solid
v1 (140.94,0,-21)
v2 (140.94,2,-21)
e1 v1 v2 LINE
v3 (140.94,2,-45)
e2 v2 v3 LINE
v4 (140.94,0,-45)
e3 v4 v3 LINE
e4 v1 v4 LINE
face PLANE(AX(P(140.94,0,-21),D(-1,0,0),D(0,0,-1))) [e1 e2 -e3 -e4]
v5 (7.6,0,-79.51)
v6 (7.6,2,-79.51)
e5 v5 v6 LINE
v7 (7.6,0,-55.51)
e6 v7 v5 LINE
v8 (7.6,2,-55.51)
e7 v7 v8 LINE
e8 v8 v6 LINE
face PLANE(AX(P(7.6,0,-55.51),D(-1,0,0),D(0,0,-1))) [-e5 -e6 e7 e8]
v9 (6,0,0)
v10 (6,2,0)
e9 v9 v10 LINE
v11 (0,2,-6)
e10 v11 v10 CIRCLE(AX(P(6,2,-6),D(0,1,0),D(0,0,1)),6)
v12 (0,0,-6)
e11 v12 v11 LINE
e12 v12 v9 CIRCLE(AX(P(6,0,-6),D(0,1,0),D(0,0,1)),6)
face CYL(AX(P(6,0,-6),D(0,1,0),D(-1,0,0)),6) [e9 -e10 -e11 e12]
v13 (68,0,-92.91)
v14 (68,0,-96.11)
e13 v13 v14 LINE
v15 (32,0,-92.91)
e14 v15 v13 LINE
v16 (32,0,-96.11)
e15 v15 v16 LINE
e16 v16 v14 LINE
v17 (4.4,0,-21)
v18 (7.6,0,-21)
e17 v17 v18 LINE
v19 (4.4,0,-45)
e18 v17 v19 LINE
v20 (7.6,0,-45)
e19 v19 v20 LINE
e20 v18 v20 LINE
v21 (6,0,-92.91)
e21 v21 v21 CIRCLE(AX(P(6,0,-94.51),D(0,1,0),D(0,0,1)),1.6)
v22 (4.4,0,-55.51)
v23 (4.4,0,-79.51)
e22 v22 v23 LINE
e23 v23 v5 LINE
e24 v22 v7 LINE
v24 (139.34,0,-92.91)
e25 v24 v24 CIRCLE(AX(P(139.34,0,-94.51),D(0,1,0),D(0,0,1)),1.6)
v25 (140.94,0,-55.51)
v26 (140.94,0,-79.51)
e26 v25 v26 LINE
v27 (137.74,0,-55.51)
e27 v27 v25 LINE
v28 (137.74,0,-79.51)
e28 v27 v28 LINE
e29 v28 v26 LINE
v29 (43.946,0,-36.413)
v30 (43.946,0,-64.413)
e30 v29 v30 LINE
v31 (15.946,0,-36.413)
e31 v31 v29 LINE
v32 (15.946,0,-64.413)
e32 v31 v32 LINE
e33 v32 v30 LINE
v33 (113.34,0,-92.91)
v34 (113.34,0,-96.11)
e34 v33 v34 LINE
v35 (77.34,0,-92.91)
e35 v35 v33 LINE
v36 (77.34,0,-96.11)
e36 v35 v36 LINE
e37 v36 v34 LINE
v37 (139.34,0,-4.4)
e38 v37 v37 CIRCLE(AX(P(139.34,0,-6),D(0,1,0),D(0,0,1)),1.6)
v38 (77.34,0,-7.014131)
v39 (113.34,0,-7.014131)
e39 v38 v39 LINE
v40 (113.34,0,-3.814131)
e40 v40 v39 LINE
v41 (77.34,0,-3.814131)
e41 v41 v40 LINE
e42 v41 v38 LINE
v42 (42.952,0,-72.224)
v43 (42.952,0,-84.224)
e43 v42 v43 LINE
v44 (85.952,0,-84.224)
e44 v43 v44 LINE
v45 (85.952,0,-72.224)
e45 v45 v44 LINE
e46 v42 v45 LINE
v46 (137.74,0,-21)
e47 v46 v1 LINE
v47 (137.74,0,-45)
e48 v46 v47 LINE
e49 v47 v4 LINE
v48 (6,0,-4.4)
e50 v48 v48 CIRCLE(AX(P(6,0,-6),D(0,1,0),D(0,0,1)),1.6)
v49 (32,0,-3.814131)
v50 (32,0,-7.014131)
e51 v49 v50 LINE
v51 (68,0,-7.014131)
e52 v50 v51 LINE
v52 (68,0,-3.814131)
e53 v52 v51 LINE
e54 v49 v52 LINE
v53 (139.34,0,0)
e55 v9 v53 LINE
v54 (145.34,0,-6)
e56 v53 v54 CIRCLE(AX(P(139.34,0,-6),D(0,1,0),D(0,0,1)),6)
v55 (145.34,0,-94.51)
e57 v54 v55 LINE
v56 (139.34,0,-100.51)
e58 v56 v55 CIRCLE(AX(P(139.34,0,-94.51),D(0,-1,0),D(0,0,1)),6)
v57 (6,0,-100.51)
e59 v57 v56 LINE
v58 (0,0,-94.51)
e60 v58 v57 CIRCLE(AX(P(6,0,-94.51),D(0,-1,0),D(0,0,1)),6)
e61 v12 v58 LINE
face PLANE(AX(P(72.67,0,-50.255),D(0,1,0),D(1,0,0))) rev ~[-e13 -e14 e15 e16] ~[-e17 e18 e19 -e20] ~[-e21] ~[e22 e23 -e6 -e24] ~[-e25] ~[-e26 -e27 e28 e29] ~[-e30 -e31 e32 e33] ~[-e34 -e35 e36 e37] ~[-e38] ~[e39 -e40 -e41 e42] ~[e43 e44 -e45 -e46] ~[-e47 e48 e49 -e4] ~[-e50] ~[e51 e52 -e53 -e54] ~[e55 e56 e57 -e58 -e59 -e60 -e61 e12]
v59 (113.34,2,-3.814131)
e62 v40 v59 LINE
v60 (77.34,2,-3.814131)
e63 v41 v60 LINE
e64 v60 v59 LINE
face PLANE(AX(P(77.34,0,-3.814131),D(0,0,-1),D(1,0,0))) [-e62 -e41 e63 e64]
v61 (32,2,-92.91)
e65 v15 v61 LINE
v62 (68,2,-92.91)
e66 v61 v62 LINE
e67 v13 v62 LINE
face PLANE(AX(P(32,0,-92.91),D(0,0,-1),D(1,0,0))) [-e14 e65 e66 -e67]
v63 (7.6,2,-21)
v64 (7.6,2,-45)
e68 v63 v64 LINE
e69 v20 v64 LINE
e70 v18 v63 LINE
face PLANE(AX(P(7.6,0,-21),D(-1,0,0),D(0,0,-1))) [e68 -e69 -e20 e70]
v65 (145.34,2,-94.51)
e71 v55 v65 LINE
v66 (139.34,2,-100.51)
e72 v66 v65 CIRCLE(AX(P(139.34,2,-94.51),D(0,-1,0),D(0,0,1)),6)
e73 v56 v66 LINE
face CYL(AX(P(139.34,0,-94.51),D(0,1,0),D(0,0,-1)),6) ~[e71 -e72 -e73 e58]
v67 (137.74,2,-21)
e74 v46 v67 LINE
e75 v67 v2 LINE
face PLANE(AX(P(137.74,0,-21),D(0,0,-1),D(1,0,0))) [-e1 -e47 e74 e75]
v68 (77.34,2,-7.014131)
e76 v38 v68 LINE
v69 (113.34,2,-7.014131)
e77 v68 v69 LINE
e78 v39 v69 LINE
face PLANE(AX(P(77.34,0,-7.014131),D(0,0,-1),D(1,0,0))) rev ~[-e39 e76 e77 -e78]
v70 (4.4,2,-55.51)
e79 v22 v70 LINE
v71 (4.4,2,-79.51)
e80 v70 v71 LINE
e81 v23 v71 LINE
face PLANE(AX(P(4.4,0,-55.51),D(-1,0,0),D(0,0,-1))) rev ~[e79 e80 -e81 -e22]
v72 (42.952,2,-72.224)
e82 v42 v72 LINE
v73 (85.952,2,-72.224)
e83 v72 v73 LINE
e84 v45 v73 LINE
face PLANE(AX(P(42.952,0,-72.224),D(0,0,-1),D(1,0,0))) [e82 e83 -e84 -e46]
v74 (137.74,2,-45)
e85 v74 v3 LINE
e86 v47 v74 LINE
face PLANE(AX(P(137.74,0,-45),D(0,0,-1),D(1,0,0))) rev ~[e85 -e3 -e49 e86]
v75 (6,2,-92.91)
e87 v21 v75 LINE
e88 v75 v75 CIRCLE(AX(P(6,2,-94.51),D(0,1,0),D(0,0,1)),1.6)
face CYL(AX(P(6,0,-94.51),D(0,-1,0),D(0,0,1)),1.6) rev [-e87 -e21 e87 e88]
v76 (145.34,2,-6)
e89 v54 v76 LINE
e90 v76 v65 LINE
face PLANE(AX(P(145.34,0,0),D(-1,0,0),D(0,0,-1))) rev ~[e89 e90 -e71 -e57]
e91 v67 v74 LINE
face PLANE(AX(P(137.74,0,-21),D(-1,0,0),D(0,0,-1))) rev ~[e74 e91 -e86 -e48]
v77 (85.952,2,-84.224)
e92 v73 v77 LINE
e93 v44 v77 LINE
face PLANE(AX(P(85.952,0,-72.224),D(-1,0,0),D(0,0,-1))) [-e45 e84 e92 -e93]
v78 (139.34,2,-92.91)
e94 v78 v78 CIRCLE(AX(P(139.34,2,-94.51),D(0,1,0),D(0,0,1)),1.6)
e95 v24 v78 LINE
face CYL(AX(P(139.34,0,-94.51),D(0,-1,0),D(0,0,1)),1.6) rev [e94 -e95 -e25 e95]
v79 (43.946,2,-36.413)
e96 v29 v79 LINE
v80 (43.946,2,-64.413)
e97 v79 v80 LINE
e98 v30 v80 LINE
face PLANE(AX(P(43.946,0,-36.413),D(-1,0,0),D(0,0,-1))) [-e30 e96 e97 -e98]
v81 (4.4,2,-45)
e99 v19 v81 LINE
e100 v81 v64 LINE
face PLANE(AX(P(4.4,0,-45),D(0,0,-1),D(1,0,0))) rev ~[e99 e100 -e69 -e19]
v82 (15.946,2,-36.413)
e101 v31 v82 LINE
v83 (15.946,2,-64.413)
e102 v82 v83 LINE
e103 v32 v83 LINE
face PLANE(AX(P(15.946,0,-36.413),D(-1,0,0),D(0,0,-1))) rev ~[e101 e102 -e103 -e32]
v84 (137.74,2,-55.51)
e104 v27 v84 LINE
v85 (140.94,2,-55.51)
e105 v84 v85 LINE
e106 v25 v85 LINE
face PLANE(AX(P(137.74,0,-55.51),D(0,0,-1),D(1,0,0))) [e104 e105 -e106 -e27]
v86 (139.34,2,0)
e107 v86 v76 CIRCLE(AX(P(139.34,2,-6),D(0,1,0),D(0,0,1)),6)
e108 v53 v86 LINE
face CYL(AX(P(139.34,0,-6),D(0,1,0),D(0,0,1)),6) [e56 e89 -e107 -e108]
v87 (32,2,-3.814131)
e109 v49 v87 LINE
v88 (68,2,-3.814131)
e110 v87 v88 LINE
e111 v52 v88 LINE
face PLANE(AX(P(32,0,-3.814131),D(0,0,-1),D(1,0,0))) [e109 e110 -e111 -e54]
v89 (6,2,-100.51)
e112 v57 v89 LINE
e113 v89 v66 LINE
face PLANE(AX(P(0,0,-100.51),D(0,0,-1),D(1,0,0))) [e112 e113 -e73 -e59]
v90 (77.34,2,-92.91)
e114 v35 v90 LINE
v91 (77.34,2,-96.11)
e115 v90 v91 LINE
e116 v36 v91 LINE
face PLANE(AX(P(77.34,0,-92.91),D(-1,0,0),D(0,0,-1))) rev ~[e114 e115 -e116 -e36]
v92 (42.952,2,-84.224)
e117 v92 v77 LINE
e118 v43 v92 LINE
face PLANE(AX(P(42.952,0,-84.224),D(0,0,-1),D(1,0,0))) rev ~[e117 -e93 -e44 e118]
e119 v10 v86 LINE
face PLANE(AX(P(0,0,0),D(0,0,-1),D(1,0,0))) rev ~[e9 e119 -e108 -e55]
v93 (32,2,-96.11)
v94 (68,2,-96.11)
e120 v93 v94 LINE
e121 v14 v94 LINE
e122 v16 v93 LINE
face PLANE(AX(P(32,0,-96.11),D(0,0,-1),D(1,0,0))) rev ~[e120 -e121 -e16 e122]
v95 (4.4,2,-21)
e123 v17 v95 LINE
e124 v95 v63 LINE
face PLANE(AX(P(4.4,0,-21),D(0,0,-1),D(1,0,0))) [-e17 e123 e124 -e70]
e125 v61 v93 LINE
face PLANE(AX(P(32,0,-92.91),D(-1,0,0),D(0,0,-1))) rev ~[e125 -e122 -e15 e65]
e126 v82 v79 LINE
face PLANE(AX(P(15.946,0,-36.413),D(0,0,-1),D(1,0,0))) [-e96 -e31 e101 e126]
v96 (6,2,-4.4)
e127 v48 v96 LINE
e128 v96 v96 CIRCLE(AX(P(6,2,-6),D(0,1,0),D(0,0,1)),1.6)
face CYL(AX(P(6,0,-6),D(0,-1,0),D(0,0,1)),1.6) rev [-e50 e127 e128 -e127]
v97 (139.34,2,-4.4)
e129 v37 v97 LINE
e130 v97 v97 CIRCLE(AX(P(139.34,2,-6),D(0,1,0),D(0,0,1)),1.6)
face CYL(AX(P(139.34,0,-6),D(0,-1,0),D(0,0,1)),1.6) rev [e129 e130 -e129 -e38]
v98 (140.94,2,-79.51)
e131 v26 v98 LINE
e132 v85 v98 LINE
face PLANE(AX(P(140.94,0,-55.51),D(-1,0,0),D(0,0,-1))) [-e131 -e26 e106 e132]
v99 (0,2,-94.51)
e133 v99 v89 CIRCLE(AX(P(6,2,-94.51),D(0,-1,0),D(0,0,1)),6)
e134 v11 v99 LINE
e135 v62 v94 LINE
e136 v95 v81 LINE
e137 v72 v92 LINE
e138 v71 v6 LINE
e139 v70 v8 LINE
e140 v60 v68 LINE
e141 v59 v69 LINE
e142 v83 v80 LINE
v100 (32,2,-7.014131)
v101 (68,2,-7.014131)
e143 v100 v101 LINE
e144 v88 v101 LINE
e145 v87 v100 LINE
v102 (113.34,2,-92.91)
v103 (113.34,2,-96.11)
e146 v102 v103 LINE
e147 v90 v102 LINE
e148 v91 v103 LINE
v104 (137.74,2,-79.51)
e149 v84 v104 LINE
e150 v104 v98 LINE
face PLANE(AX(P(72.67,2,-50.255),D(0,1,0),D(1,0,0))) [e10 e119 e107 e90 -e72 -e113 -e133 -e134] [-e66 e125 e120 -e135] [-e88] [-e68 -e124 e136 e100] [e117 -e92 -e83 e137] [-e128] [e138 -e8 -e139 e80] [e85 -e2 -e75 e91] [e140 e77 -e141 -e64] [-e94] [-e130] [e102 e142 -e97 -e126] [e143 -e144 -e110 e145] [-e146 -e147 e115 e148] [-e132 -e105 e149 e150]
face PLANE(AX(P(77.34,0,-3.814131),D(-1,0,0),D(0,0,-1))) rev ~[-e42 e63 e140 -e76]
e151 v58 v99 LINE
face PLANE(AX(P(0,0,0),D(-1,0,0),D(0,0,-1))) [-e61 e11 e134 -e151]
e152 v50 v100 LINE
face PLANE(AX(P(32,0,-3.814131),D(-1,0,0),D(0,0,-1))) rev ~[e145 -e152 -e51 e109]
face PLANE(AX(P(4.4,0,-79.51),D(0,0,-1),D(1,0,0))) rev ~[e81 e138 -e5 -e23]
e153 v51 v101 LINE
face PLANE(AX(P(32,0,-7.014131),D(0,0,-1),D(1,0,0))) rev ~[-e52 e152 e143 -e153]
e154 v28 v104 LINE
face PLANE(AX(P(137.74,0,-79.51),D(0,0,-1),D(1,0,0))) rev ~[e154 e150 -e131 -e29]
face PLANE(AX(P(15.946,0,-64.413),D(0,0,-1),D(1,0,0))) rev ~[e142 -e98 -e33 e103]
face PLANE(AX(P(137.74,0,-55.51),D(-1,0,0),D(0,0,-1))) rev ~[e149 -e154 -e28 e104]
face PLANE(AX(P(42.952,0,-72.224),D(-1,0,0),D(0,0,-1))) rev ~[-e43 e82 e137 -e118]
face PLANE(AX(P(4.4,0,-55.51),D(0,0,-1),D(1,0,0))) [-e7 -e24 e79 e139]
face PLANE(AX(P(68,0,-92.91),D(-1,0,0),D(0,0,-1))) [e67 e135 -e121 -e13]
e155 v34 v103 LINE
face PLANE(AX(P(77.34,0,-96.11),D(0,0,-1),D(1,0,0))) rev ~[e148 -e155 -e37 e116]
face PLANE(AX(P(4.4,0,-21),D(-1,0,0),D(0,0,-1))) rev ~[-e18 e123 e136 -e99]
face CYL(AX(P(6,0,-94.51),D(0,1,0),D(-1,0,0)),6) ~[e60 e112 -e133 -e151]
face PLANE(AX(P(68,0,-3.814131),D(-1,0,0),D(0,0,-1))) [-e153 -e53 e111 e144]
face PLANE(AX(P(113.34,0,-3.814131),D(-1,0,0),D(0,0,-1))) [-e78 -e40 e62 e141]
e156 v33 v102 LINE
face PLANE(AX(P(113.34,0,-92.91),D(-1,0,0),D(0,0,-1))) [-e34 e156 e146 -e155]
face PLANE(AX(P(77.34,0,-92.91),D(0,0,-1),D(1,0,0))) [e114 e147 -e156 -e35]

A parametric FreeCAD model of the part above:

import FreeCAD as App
import Part
import Sketcher
from FreeCAD import Vector


def edges_at(feature, points):
    """Names of the edges that pass closest to the given points."""
    edges = feature.Shape.Edges
    near = lambda p: min(range(len(edges)), key=lambda i: edges[i].distToShape(Part.Vertex(*p))[0])
    return sorted({f"Edge{near(p) + 1}" for p in points})


def add_polygon(sketch, points):
    """Adds a closed chain of lines whose ends are joined by coincident constraints."""
    first, n = sketch.GeometryCount, len(points)
    for a, b in zip(points, points[1:] + points[:1]):
        sketch.addGeometry(Part.LineSegment(App.Vector(*a, 0), App.Vector(*b, 0)), False)
    for i in range(n):
        sketch.addConstraint(Sketcher.Constraint("Coincident", first + i, 2, first + (i + 1) % n, 1))

doc = App.newDocument("Part")
params = doc.addObject("Spreadsheet::Sheet", "Params")
for row, (alias, value) in enumerate([
    ("sketch1_diameter", "3.2 mm"),
    ("sketch1_width", "36 mm"),
    ("sketch1_width2", "28 mm"),
    ("sketch1_width3", "43 mm"),
    ("sketch1_height", "24 mm"),
    ("pad1_length", "2 mm"),
    ("fillet_radius", "6 mm"),
    ("fillet2_radius", "6 mm"),
    ("fillet3_radius", "6 mm"),
], start=1):
    params.set(f"A{row}", alias)
    params.set(f"B{row}", "=" + value)
    params.setAlias(f"B{row}", alias)

body = doc.addObject("PartDesign::Body", "Body")

# Sketch on XZ plane
sketch1 = body.newObject("Sketcher::SketchObject", "Sketch")
sketch1.AttachmentSupport = (doc.getObject("XZ_Plane"), [""])
sketch1.MapMode = "FlatFace"
add_polygon(sketch1, [(0, -100.5), (0, 0), (145.3, 0), (145.3, -100.5)])  # lines 0-3
sketch1.addGeometry(Part.Circle(Vector(6, -6, 0), Vector(0, 0, 1), 1.6), False)  # 4
add_polygon(sketch1, [(68, -3.8), (32, -3.8), (32, -7), (68, -7)])  # lines 5-8
add_polygon(sketch1, [(7.6, -21), (4.4, -21), (4.4, -45), (7.6, -45)])  # lines 9-12
add_polygon(sketch1, [(113.3, -3.8), (77.3, -3.8), (77.3, -7), (113.3, -7)])  # lines 13-16
sketch1.addGeometry(Part.Circle(Vector(139.3, -6, 0), Vector(0, 0, 1), 1.6), False)  # 17
add_polygon(sketch1, [(140.9, -21), (137.7, -21), (137.7, -45), (140.9, -45)])  # lines 18-21
add_polygon(sketch1, [(43.9, -36.4), (15.9, -36.4), (15.9, -64.4), (43.9, -64.4)])  # lines 22-25
add_polygon(sketch1, [(7.6, -55.5), (4.4, -55.5), (4.4, -79.5), (7.6, -79.5)])  # lines 26-29
sketch1.addGeometry(Part.Circle(Vector(6, -94.5, 0), Vector(0, 0, 1), 1.6), False)  # 30
add_polygon(sketch1, [(86, -72.2), (43, -72.2), (43, -84.2), (86, -84.2)])  # lines 31-34
add_polygon(sketch1, [(68, -92.9), (32, -92.9), (32, -96.1), (68, -96.1)])  # lines 35-38
add_polygon(sketch1, [(140.9, -55.5), (137.7, -55.5), (137.7, -79.5), (140.9, -79.5)])  # lines 39-42
add_polygon(sketch1, [(113.3, -92.9), (77.3, -92.9), (77.3, -96.1), (113.3, -96.1)])  # lines 43-46
sketch1.addGeometry(Part.Circle(Vector(139.3, -94.5, 0), Vector(0, 0, 1), 1.6), False)  # 47
sketch1.addConstraint([
    Sketcher.Constraint("Vertical", 0),
    Sketcher.Constraint("Horizontal", 1),
    Sketcher.Constraint("Vertical", 2),
    Sketcher.Constraint("Horizontal", 3),
    Sketcher.Constraint("Horizontal", 5),
    Sketcher.Constraint("Vertical", 6),
    Sketcher.Constraint("Horizontal", 7),
    Sketcher.Constraint("Vertical", 8),
    Sketcher.Constraint("Horizontal", 9),
    Sketcher.Constraint("Vertical", 10),
    Sketcher.Constraint("Horizontal", 11),
    Sketcher.Constraint("Vertical", 12),
    Sketcher.Constraint("Horizontal", 13),
    Sketcher.Constraint("Vertical", 14),
    Sketcher.Constraint("Horizontal", 15),
    Sketcher.Constraint("Vertical", 16),
    Sketcher.Constraint("Horizontal", 18),
    Sketcher.Constraint("Vertical", 19),
    Sketcher.Constraint("Horizontal", 20),
    Sketcher.Constraint("Vertical", 21),
    Sketcher.Constraint("Horizontal", 22),
    Sketcher.Constraint("Vertical", 23),
    Sketcher.Constraint("Horizontal", 24),
    Sketcher.Constraint("Vertical", 25),
    Sketcher.Constraint("Horizontal", 26),
    Sketcher.Constraint("Vertical", 27),
    Sketcher.Constraint("Horizontal", 28),
    Sketcher.Constraint("Vertical", 29),
    Sketcher.Constraint("Horizontal", 31),
    Sketcher.Constraint("Vertical", 32),
    Sketcher.Constraint("Horizontal", 33),
    Sketcher.Constraint("Vertical", 34),
    Sketcher.Constraint("Horizontal", 35),
    Sketcher.Constraint("Vertical", 36),
    Sketcher.Constraint("Horizontal", 37),
    Sketcher.Constraint("Vertical", 38),
    Sketcher.Constraint("Horizontal", 39),
    Sketcher.Constraint("Vertical", 40),
    Sketcher.Constraint("Horizontal", 41),
    Sketcher.Constraint("Vertical", 42),
    Sketcher.Constraint("Horizontal", 43),
    Sketcher.Constraint("Vertical", 44),
    Sketcher.Constraint("Horizontal", 45),
    Sketcher.Constraint("Vertical", 46),
    Sketcher.Constraint("Coincident", 0, 2, -1, 1),
    Sketcher.Constraint("Equal", 4, 17),
    Sketcher.Constraint("Equal", 17, 30),
    Sketcher.Constraint("Equal", 30, 47),
    Sketcher.Constraint("Horizontal", 4, 3, 17, 3),
    Sketcher.Constraint("Horizontal", 30, 3, 47, 3),
    Sketcher.Constraint("Horizontal", 8, 2, 13, 2),
    Sketcher.Constraint("Horizontal", 7, 2, 14, 2),
    Sketcher.Constraint("Horizontal", 12, 2, 18, 2),
    Sketcher.Constraint("Horizontal", 11, 2, 19, 2),
    Sketcher.Constraint("Horizontal", 29, 2, 39, 2),
    Sketcher.Constraint("Horizontal", 28, 2, 40, 2),
    Sketcher.Constraint("Horizontal", 38, 2, 43, 2),
    Sketcher.Constraint("Horizontal", 37, 2, 44, 2),
    Sketcher.Constraint("Vertical", 4, 3, 30, 3),
    Sketcher.Constraint("Vertical", 17, 3, 47, 3),
    Sketcher.Constraint("Vertical", 10, 2, 26, 2),
    Sketcher.Constraint("Vertical", 12, 2, 28, 2),
    Sketcher.Constraint("Vertical", 6, 2, 35, 2),
    Sketcher.Constraint("Vertical", 8, 2, 37, 2),
    Sketcher.Constraint("Vertical", 19, 2, 39, 2),
    Sketcher.Constraint("Vertical", 21, 2, 41, 2),
    Sketcher.Constraint("Vertical", 14, 2, 43, 2),
    Sketcher.Constraint("Vertical", 16, 2, 45, 2),
    Sketcher.Constraint("Equal", 7, 13),
    Sketcher.Constraint("Equal", 11, 18),
    Sketcher.Constraint("Equal", 41, 6),
    Sketcher.Constraint("Equal", 24, 23),
    Sketcher.Constraint("Equal", 21, 27),
    Sketcher.Constraint("Equal", 16, 36),
    Sketcher.Constraint("Diameter", 4, 3.2),
    Sketcher.Constraint("DistanceX", 5, 2, 5, 1, 36.0),
    Sketcher.Constraint("DistanceX", 22, 2, 22, 1, 28.0),
    Sketcher.Constraint("DistanceX", 31, 2, 31, 1, 43.0),
    Sketcher.Constraint("DistanceY", 10, 2, 10, 1, 24.0),
    Sketcher.Constraint("DistanceY", 32, 2, 32, 1, 12.0),
    Sketcher.Constraint("DistanceX", 9, 2, 9, 1, 3.2),
    Sketcher.Constraint("DistanceX", -1, 1, 4, 3, 6.0),
    Sketcher.Constraint("DistanceY", 4, 3, -1, 1, 6.0),
    Sketcher.Constraint("DistanceX", -1, 1, 5, 2, 32.0),
    Sketcher.Constraint("DistanceY", 9, 2, -1, 1, 21.0),
    Sketcher.Constraint("DistanceX", 17, 3, 1, 2, 6.0),
    Sketcher.Constraint("DistanceY", 2, 2, 47, 3, 6.0),
    Sketcher.Constraint("DistanceX", 13, 2, 17, 3, 62.0),
    Sketcher.Constraint("DistanceY", 30, 3, 27, 2, 15.0),
    Sketcher.Constraint("DistanceX", 1, 1, 1, 2, 145.34),
    Sketcher.Constraint("DistanceY", 0, 1, 0, 2, 100.51),
    Sketcher.Constraint("DistanceX", -1, 1, 9, 2, 4.4),
    Sketcher.Constraint("DistanceX", 18, 2, 17, 3, 1.6),
    Sketcher.Constraint("DistanceY", 30, 3, 35, 2, 1.6),
    Sketcher.Constraint("DistanceX", -1, 1, 22, 2, 15.946),
    Sketcher.Constraint("DistanceY", 22, 2, -1, 1, 36.413),
    Sketcher.Constraint("DistanceX", -1, 1, 31, 2, 42.952),
    Sketcher.Constraint("DistanceY", 31, 2, -1, 1, 72.224),
    Sketcher.Constraint("DistanceY", 5, 2, -1, 1, 3.814131),
])
sketch1.setExpression("Constraints[118]", "Params.sketch1_diameter")
sketch1.setExpression("Constraints[119]", "Params.sketch1_width")
sketch1.setExpression("Constraints[120]", "Params.sketch1_width2")
sketch1.setExpression("Constraints[121]", "Params.sketch1_width3")
sketch1.setExpression("Constraints[122]", "Params.sketch1_height")
pad1 = body.newObject("PartDesign::Pad", "Pad")
pad1.Profile = sketch1
pad1.setExpression("Length", "Params.pad1_length")
pad1.Reversed = True
doc.recompute()

fillet = body.newObject("PartDesign::Fillet", "Fillet")
fillet.Base = (pad1, edges_at(pad1, [(0, 1, -100.51)]))
fillet.setExpression("Radius", "Params.fillet_radius")
doc.recompute()

fillet2 = body.newObject("PartDesign::Fillet", "Fillet001")
fillet2.Base = (fillet, edges_at(fillet, [(0, 1, 0)]))
fillet2.setExpression("Radius", "Params.fillet2_radius")
doc.recompute()

fillet3 = body.newObject("PartDesign::Fillet", "Fillet002")
fillet3.Base = (fillet2, edges_at(fillet2, [(145.34, 1, -100.51), (145.34, 1, 0)]))
fillet3.setExpression("Radius", "Params.fillet3_radius")

doc.recompute()
